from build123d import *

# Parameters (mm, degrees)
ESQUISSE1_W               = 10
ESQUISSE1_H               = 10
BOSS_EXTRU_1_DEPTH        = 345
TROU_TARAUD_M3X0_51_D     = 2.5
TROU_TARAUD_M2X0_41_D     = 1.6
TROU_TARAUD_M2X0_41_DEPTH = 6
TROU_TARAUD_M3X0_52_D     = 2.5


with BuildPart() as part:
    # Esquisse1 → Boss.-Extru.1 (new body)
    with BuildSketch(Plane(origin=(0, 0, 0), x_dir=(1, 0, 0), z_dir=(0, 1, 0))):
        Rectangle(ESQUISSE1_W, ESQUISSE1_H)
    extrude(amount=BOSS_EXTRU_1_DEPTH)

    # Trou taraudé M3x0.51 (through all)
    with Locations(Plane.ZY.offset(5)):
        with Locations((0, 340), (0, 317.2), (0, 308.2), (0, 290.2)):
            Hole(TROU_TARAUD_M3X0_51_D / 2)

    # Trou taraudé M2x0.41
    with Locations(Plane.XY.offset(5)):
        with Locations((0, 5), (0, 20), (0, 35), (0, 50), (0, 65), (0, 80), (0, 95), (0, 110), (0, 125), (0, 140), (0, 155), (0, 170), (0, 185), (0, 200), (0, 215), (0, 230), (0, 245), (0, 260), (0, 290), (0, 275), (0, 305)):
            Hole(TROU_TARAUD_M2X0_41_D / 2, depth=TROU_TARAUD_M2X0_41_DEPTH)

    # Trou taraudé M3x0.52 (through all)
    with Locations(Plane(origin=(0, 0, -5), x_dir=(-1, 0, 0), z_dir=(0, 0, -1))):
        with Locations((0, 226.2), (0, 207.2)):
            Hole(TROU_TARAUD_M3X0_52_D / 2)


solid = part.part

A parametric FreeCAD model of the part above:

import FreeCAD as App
import Part
import Sketcher

V = App.Vector
Q = App.Units.Quantity


def add_polygon(sketch, points):
    """Adds a closed chain of lines whose ends are joined by coincident constraints."""
    first, n = sketch.GeometryCount, len(points)
    for a, b in zip(points, points[1:] + points[:1]):
        sketch.addGeometry(Part.LineSegment(App.Vector(*a, 0), App.Vector(*b, 0)), False)
    for i in range(n):
        sketch.addConstraint(Sketcher.Constraint("Coincident", first + i, 2, first + (i + 1) % n, 1))

doc = App.newDocument("Part")
params = doc.addObject("Spreadsheet::Sheet", "Params")
for row, (alias, value) in enumerate([
    ("sketch1_width", "10 mm"),
    ("pad1_length", "345 mm"),
    ("sketch2_diameter", "2.5 mm"),
    ("hole_diameter", "2.5 mm"),
    ("sketch3_diameter", "1.6 mm"),
    ("hole2_diameter", "1.6 mm"),
    ("hole2_depth", "6 mm"),
    ("sketch4_diameter", "2.5 mm"),
    ("hole3_diameter", "2.5 mm"),
], start=1):
    params.set(f"A{row}", alias)
    params.set(f"B{row}", "=" + value)
    params.setAlias(f"B{row}", alias)

body = doc.addObject("PartDesign::Body", "Body")

sketch1 = body.newObject("Sketcher::SketchObject", "Sketch")
sketch1.AttachmentSupport = (doc.getObject("XZ_Plane"), [""])
sketch1.MapMode = "FlatFace"
add_polygon(sketch1, [(-5, -5), (-5, 5), (5, 5), (5, -5)])
sketch1.addConstraint([
    Sketcher.Constraint("Vertical", 0),
    Sketcher.Constraint("Horizontal", 1),
    Sketcher.Constraint("Vertical", 2),
    Sketcher.Constraint("Horizontal", 3),
    Sketcher.Constraint("Symmetric", 0, 2, 2, 2, -1, 1),
    Sketcher.Constraint("Equal", 3, 0),
    Sketcher.Constraint("DistanceX", 1, 1, 1, 2, Q("10 mm")),
])
sketch1.setExpression("Constraints[10]", "Params.sketch1_width")
pad1 = body.newObject("PartDesign::Pad", "Pad")
pad1.Profile = sketch1
pad1.setExpression("Length", "Params.pad1_length")
pad1.Reversed = True

sketch2 = body.newObject("Sketcher::SketchObject", "Sketch001")
sketch2.AttachmentSupport = (doc.getObject("YZ_Plane"), [""])
sketch2.MapMode = "FlatFace"
sketch2.AttachmentOffset = App.Placement(V(0, 0, -5), App.Rotation())
sketch2.addGeometry([
    Part.Circle(V(340, 0, 0), V(0, 0, 1), 1.2),
    Part.Circle(V(317.2, 0, 0), V(0, 0, 1), 1.2),
    Part.Circle(V(308.2, 0, 0), V(0, 0, 1), 1.2),
    Part.Circle(V(290.2, 0, 0), V(0, 0, 1), 1.2),
], False)
sketch2.addConstraint([
    Sketcher.Constraint("Equal", 0, 1),
    Sketcher.Constraint("Equal", 1, 2),
    Sketcher.Constraint("Equal", 2, 3),
    Sketcher.Constraint("PointOnObject", 0, 3, -1),
    Sketcher.Constraint("PointOnObject", 1, 3, -1),
    Sketcher.Constraint("PointOnObject", 2, 3, -1),
    Sketcher.Constraint("PointOnObject", 3, 3, -1),
    Sketcher.Constraint("Diameter", 0, Q("2.5 mm")),
    Sketcher.Constraint("DistanceX", -1, 1, 0, 3, Q("340 mm")),
    Sketcher.Constraint("DistanceX", 2, 3, 1, 3, Q("9 mm")),
    Sketcher.Constraint("DistanceX", 3, 3, 2, 3, Q("18 mm")),
    Sketcher.Constraint("DistanceX", -1, 1, 1, 3, Q("317.2 mm")),
])
sketch2.setExpression("Constraints[7]", "Params.sketch2_diameter")
doc.recompute()
hole = body.newObject("PartDesign::Hole", "Hole")
hole.Profile = sketch2
hole.ThreadType = "None"
hole.setExpression("Diameter", "Params.hole_diameter")
hole.DepthType = "ThroughAll"
hole.Reversed = True

sketch3 = body.newObject("Sketcher::SketchObject", "Sketch002")
sketch3.AttachmentSupport = (doc.getObject("XY_Plane"), [""])
sketch3.MapMode = "FlatFace"
sketch3.AttachmentOffset = App.Placement(V(0, 0, 5), App.Rotation())
sketch3.addGeometry([
    Part.Circle(V(0, 5, 0), V(0, 0, 1), 0.8),
    Part.Circle(V(0, 20, 0), V(0, 0, 1), 0.8),
    Part.Circle(V(0, 35, 0), V(0, 0, 1), 0.8),
    Part.Circle(V(0, 50, 0), V(0, 0, 1), 0.8),
    Part.Circle(V(0, 65, 0), V(0, 0, 1), 0.8),
    Part.Circle(V(0, 80, 0), V(0, 0, 1), 0.8),
    Part.Circle(V(0, 95, 0), V(0, 0, 1), 0.8),
    Part.Circle(V(0, 110, 0), V(0, 0, 1), 0.8),
    Part.Circle(V(0, 125, 0), V(0, 0, 1), 0.8),
    Part.Circle(V(0, 140, 0), V(0, 0, 1), 0.8),
    Part.Circle(V(0, 155, 0), V(0, 0, 1), 0.8),
    Part.Circle(V(0, 170, 0), V(0, 0, 1), 0.8),
    Part.Circle(V(0, 185, 0), V(0, 0, 1), 0.8),
    Part.Circle(V(0, 200, 0), V(0, 0, 1), 0.8),
    Part.Circle(V(0, 215, 0), V(0, 0, 1), 0.8),
    Part.Circle(V(0, 230, 0), V(0, 0, 1), 0.8),
    Part.Circle(V(0, 245, 0), V(0, 0, 1), 0.8),
    Part.Circle(V(0, 260, 0), V(0, 0, 1), 0.8),
    Part.Circle(V(0, 290, 0), V(0, 0, 1), 0.8),
    Part.Circle(V(0, 275, 0), V(0, 0, 1), 0.8),
    Part.Circle(V(0, 305, 0), V(0, 0, 1), 0.8),
], False)
sketch3.addConstraint([
    Sketcher.Constraint("Equal", 0, 1),
    Sketcher.Constraint("Equal", 1, 2),
    Sketcher.Constraint("Equal", 2, 3),
    Sketcher.Constraint("Equal", 3, 4),
    Sketcher.Constraint("Equal", 4, 5),
    Sketcher.Constraint("Equal", 5, 6),
    Sketcher.Constraint("Equal", 6, 7),
    Sketcher.Constraint("Equal", 7, 8),
    Sketcher.Constraint("Equal", 8, 9),
    Sketcher.Constraint("Equal", 9, 10),
    Sketcher.Constraint("Equal", 10, 11),
    Sketcher.Constraint("Equal", 11, 12),
    Sketcher.Constraint("Equal", 12, 13),
    Sketcher.Constraint("Equal", 13, 14),
    Sketcher.Constraint("Equal", 14, 15),
    Sketcher.Constraint("Equal", 15, 16),
    Sketcher.Constraint("Equal", 16, 17),
    Sketcher.Constraint("Equal", 17, 18),
    Sketcher.Constraint("Equal", 18, 19),
    Sketcher.Constraint("Equal", 19, 20),
    Sketcher.Constraint("PointOnObject", 0, 3, -2),
    Sketcher.Constraint("PointOnObject", 1, 3, -2),
    Sketcher.Constraint("PointOnObject", 2, 3, -2),
    Sketcher.Constraint("PointOnObject", 3, 3, -2),
    Sketcher.Constraint("PointOnObject", 4, 3, -2),
    Sketcher.Constraint("PointOnObject", 5, 3, -2),
    Sketcher.Constraint("PointOnObject", 6, 3, -2),
    Sketcher.Constraint("PointOnObject", 7, 3, -2),
    Sketcher.Constraint("PointOnObject", 8, 3, -2),
    Sketcher.Constraint("PointOnObject", 9, 3, -2),
    Sketcher.Constraint("PointOnObject", 10, 3, -2),
    Sketcher.Constraint("PointOnObject", 11, 3, -2),
    Sketcher.Constraint("PointOnObject", 12, 3, -2),
    Sketcher.Constraint("PointOnObject", 13, 3, -2),
    Sketcher.Constraint("PointOnObject", 14, 3, -2),
    Sketcher.Constraint("PointOnObject", 15, 3, -2),
    Sketcher.Constraint("PointOnObject", 16, 3, -2),
    Sketcher.Constraint("PointOnObject", 17, 3, -2),
    Sketcher.Constraint("PointOnObject", 18, 3, -2),
    Sketcher.Constraint("PointOnObject", 19, 3, -2),
    Sketcher.Constraint("PointOnObject", 20, 3, -2),
    Sketcher.Constraint("Diameter", 0, Q("1.6 mm")),
    Sketcher.Constraint("DistanceY", -1, 1, 0, 3, Q("5 mm")),
    Sketcher.Constraint("DistanceY", -1, 1, 1, 3, Q("20 mm")),
    Sketcher.Constraint("DistanceY", -1, 1, 2, 3, Q("35 mm")),
    Sketcher.Constraint("DistanceY", -1, 1, 3, 3, Q("50 mm")),
    Sketcher.Constraint("DistanceY", -1, 1, 4, 3, Q("65 mm")),
    Sketcher.Constraint("DistanceY", -1, 1, 5, 3, Q("80 mm")),
    Sketcher.Constraint("DistanceY", -1, 1, 6, 3, Q("95 mm")),
    Sketcher.Constraint("DistanceY", -1, 1, 7, 3, Q("110 mm")),
    Sketcher.Constraint("DistanceY", -1, 1, 8, 3, Q("125 mm")),
    Sketcher.Constraint("DistanceY", -1, 1, 9, 3, Q("140 mm")),
    Sketcher.Constraint("DistanceY", -1, 1, 10, 3, Q("155 mm")),
    Sketcher.Constraint("DistanceY", -1, 1, 11, 3, Q("170 mm")),
    Sketcher.Constraint("DistanceY", -1, 1, 12, 3, Q("185 mm")),
    Sketcher.Constraint("DistanceY", -1, 1, 13, 3, Q("200 mm")),
    Sketcher.Constraint("DistanceY", -1, 1, 14, 3, Q("215 mm")),
    Sketcher.Constraint("DistanceY", -1, 1, 15, 3, Q("230 mm")),
    Sketcher.Constraint("DistanceY", -1, 1, 16, 3, Q("245 mm")),
    Sketcher.Constraint("DistanceY", -1, 1, 17, 3, Q("260 mm")),
    Sketcher.Constraint("DistanceY", -1, 1, 18, 3, Q("290 mm")),
    Sketcher.Constraint("DistanceY", -1, 1, 19, 3, Q("275 mm")),
    Sketcher.Constraint("DistanceY", -1, 1, 20, 3, Q("305 mm")),
])
sketch3.setExpression("Constraints[41]", "Params.sketch3_diameter")
doc.recompute()
hole2 = body.newObject("PartDesign::Hole", "Hole001")
hole2.Profile = sketch3
hole2.ThreadType = "None"
hole2.setExpression("Diameter", "Params.hole2_diameter")
hole2.DepthType = "Dimension"
hole2.setExpression("Depth", "Params.hole2_depth")
hole2.DrillPoint = "Flat"

sketch4 = body.newObject("Sketcher::SketchObject", "Sketch003")
sketch4.AttachmentSupport = (doc.getObject("XY_Plane"), [""])
sketch4.MapMode = "FlatFace"
sketch4.AttachmentOffset = App.Placement(V(0, 0, -5), App.Rotation())
sketch4.addGeometry([
    Part.Circle(V(0, 226.2, 0), V(0, 0, 1), 1.2),
    Part.Circle(V(0, 207.2, 0), V(0, 0, 1), 1.2),
], False)
sketch4.addConstraint([
    Sketcher.Constraint("Equal", 0, 1),
    Sketcher.Constraint("PointOnObject", 0, 3, -2),
    Sketcher.Constraint("PointOnObject", 1, 3, -2),
    Sketcher.Constraint("Diameter", 0, Q("2.5 mm")),
    Sketcher.Constraint("DistanceY", 1, 3, 0, 3, Q("19 mm")),
    Sketcher.Constraint("DistanceY", -1, 1, 0, 3, Q("226.2 mm")),
])
sketch4.setExpression("Constraints[3]", "Params.sketch4_diameter")
doc.recompute()
hole3 = body.newObject("PartDesign::Hole", "Hole002")
hole3.Profile = sketch4
hole3.ThreadType = "None"
hole3.setExpression("Diameter", "Params.hole3_diameter")
hole3.DepthType = "ThroughAll"
hole3.Reversed = True

doc.recompute()
